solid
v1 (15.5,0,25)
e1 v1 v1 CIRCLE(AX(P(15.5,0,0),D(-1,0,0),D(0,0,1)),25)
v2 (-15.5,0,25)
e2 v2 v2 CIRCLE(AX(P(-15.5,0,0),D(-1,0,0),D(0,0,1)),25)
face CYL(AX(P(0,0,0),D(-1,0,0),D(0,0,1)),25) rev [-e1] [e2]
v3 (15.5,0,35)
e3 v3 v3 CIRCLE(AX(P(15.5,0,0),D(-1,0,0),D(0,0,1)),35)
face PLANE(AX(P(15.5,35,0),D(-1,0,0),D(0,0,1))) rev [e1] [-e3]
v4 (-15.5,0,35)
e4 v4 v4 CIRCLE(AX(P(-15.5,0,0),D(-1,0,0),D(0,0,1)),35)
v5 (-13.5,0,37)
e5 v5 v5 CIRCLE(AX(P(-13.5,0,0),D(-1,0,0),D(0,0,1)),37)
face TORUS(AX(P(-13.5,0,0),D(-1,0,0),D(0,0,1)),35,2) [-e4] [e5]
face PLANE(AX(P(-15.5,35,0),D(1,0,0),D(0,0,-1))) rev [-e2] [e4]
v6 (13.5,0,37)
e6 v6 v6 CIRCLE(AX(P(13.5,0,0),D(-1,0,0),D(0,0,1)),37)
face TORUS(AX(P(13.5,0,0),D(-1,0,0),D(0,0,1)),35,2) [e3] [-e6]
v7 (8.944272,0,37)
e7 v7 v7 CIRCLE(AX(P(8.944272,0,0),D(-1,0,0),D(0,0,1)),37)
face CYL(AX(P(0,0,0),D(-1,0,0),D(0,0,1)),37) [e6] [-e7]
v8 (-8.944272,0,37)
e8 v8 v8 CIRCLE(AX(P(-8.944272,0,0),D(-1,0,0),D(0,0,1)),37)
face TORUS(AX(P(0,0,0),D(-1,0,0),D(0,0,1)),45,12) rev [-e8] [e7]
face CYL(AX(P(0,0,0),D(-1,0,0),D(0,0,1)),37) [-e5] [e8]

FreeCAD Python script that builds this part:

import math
import FreeCAD as App
import Part
import Sketcher

doc = App.newDocument("Part")
params = doc.addObject("Spreadsheet::Sheet", "Params")
for row, (alias, value) in enumerate([
    ("sketch1_radius", "12 mm"),
    ("sketch1_radius2", "2 mm"),
    ("sketch1_width", "31 mm"),
    ("sketch1_height", "10 mm"),
    ("revolution_angle", "360 deg"),
], start=1):
    params.set(f"A{row}", alias)
    params.set(f"B{row}", "=" + value)
    params.setAlias(f"B{row}", alias)

body = doc.addObject("PartDesign::Body", "Body")

# Sketch on XY plane
sketch1 = body.newObject("Sketcher::SketchObject", "Sketch")
sketch1.AttachmentSupport = (doc.getObject("XY_Plane"), [""])
sketch1.MapMode = "FlatFace"
sketch1.addGeometry(Part.LineSegment(App.Vector(13.5, 37, 0), App.Vector(8.9, 37, 0)), False)
sketch1.addGeometry(Part.ArcOfCircle(Part.Circle(App.Vector(0, 45, 0), App.Vector(0, 0, 1), 12), math.radians(-138), math.radians(-42)), False)
sketch1.addGeometry(Part.LineSegment(App.Vector(-8.9, 37, 0), App.Vector(-13.5, 37, 0)), False)
sketch1.addGeometry(Part.ArcOfCircle(Part.Circle(App.Vector(-13.5, 35, 0), App.Vector(0, 0, 1), 2), math.radians(90), math.radians(180)), False)
sketch1.addGeometry(Part.LineSegment(App.Vector(-15.5, 35, 0), App.Vector(-15.5, 25, 0)), False)
sketch1.addGeometry(Part.LineSegment(App.Vector(-15.5, 25, 0), App.Vector(15.5, 25, 0)), False)
sketch1.addGeometry(Part.LineSegment(App.Vector(15.5, 25, 0), App.Vector(15.5, 35, 0)), False)
sketch1.addGeometry(Part.ArcOfCircle(Part.Circle(App.Vector(13.5, 35, 0), App.Vector(0, 0, 1), 2), math.radians(0), math.radians(90)), False)
sketch1.addConstraint(Sketcher.Constraint("Coincident", 0, 2, 1, 2))
sketch1.addConstraint(Sketcher.Constraint("Coincident", 1, 1, 2, 1))
sketch1.addConstraint(Sketcher.Constraint("Tangent", 2, 2, 3, 1))
sketch1.addConstraint(Sketcher.Constraint("Tangent", 3, 2, 4, 1))
sketch1.addConstraint(Sketcher.Constraint("Coincident", 4, 2, 5, 1))
sketch1.addConstraint(Sketcher.Constraint("Coincident", 5, 2, 6, 1))
sketch1.addConstraint(Sketcher.Constraint("Tangent", 6, 2, 7, 1))
sketch1.addConstraint(Sketcher.Constraint("Tangent", 7, 2, 0, 1))
sketch1.addConstraint(Sketcher.Constraint("Horizontal", 0))
sketch1.addConstraint(Sketcher.Constraint("Horizontal", 2))
sketch1.addConstraint(Sketcher.Constraint("Vertical", 4))
sketch1.addConstraint(Sketcher.Constraint("Horizontal", 5))
sketch1.addConstraint(Sketcher.Constraint("Vertical", 6))
sketch1.addConstraint(Sketcher.Constraint("Equal", 3, 7))
sketch1.addConstraint(Sketcher.Constraint("Symmetric", 3, 3, 7, 3, -2))
sketch1.addConstraint(Sketcher.Constraint("PointOnObject", 1, 3, -2))
sketch1.addConstraint(Sketcher.Constraint("Radius", 1, 12.0))
sketch1.addConstraint(Sketcher.Constraint("Radius", 3, 2.0))
sketch1.addConstraint(Sketcher.Constraint("DistanceX", 5, 1, 5, 2, 31.0))
sketch1.addConstraint(Sketcher.Constraint("DistanceY", 4, 2, 4, 1, 10.0))
sketch1.addConstraint(Sketcher.Constraint("DistanceY", -1, 1, 1, 3, 45.0))
sketch1.addConstraint(Sketcher.Constraint("DistanceY", -1, 1, 3, 3, 35.0))
sketch1.setExpression("Constraints[16]", "Params.sketch1_radius")
sketch1.setExpression("Constraints[17]", "Params.sketch1_radius2")
sketch1.setExpression("Constraints[18]", "Params.sketch1_width")
sketch1.setExpression("Constraints[19]", "Params.sketch1_height")
revolution = body.newObject("PartDesign::Revolution", "Revolution")
revolution.Profile = sketch1
revolution.ReferenceAxis = (sketch1, ["H_Axis"])
revolution.setExpression("Angle", "Params.revolution_angle")

doc.recompute()
